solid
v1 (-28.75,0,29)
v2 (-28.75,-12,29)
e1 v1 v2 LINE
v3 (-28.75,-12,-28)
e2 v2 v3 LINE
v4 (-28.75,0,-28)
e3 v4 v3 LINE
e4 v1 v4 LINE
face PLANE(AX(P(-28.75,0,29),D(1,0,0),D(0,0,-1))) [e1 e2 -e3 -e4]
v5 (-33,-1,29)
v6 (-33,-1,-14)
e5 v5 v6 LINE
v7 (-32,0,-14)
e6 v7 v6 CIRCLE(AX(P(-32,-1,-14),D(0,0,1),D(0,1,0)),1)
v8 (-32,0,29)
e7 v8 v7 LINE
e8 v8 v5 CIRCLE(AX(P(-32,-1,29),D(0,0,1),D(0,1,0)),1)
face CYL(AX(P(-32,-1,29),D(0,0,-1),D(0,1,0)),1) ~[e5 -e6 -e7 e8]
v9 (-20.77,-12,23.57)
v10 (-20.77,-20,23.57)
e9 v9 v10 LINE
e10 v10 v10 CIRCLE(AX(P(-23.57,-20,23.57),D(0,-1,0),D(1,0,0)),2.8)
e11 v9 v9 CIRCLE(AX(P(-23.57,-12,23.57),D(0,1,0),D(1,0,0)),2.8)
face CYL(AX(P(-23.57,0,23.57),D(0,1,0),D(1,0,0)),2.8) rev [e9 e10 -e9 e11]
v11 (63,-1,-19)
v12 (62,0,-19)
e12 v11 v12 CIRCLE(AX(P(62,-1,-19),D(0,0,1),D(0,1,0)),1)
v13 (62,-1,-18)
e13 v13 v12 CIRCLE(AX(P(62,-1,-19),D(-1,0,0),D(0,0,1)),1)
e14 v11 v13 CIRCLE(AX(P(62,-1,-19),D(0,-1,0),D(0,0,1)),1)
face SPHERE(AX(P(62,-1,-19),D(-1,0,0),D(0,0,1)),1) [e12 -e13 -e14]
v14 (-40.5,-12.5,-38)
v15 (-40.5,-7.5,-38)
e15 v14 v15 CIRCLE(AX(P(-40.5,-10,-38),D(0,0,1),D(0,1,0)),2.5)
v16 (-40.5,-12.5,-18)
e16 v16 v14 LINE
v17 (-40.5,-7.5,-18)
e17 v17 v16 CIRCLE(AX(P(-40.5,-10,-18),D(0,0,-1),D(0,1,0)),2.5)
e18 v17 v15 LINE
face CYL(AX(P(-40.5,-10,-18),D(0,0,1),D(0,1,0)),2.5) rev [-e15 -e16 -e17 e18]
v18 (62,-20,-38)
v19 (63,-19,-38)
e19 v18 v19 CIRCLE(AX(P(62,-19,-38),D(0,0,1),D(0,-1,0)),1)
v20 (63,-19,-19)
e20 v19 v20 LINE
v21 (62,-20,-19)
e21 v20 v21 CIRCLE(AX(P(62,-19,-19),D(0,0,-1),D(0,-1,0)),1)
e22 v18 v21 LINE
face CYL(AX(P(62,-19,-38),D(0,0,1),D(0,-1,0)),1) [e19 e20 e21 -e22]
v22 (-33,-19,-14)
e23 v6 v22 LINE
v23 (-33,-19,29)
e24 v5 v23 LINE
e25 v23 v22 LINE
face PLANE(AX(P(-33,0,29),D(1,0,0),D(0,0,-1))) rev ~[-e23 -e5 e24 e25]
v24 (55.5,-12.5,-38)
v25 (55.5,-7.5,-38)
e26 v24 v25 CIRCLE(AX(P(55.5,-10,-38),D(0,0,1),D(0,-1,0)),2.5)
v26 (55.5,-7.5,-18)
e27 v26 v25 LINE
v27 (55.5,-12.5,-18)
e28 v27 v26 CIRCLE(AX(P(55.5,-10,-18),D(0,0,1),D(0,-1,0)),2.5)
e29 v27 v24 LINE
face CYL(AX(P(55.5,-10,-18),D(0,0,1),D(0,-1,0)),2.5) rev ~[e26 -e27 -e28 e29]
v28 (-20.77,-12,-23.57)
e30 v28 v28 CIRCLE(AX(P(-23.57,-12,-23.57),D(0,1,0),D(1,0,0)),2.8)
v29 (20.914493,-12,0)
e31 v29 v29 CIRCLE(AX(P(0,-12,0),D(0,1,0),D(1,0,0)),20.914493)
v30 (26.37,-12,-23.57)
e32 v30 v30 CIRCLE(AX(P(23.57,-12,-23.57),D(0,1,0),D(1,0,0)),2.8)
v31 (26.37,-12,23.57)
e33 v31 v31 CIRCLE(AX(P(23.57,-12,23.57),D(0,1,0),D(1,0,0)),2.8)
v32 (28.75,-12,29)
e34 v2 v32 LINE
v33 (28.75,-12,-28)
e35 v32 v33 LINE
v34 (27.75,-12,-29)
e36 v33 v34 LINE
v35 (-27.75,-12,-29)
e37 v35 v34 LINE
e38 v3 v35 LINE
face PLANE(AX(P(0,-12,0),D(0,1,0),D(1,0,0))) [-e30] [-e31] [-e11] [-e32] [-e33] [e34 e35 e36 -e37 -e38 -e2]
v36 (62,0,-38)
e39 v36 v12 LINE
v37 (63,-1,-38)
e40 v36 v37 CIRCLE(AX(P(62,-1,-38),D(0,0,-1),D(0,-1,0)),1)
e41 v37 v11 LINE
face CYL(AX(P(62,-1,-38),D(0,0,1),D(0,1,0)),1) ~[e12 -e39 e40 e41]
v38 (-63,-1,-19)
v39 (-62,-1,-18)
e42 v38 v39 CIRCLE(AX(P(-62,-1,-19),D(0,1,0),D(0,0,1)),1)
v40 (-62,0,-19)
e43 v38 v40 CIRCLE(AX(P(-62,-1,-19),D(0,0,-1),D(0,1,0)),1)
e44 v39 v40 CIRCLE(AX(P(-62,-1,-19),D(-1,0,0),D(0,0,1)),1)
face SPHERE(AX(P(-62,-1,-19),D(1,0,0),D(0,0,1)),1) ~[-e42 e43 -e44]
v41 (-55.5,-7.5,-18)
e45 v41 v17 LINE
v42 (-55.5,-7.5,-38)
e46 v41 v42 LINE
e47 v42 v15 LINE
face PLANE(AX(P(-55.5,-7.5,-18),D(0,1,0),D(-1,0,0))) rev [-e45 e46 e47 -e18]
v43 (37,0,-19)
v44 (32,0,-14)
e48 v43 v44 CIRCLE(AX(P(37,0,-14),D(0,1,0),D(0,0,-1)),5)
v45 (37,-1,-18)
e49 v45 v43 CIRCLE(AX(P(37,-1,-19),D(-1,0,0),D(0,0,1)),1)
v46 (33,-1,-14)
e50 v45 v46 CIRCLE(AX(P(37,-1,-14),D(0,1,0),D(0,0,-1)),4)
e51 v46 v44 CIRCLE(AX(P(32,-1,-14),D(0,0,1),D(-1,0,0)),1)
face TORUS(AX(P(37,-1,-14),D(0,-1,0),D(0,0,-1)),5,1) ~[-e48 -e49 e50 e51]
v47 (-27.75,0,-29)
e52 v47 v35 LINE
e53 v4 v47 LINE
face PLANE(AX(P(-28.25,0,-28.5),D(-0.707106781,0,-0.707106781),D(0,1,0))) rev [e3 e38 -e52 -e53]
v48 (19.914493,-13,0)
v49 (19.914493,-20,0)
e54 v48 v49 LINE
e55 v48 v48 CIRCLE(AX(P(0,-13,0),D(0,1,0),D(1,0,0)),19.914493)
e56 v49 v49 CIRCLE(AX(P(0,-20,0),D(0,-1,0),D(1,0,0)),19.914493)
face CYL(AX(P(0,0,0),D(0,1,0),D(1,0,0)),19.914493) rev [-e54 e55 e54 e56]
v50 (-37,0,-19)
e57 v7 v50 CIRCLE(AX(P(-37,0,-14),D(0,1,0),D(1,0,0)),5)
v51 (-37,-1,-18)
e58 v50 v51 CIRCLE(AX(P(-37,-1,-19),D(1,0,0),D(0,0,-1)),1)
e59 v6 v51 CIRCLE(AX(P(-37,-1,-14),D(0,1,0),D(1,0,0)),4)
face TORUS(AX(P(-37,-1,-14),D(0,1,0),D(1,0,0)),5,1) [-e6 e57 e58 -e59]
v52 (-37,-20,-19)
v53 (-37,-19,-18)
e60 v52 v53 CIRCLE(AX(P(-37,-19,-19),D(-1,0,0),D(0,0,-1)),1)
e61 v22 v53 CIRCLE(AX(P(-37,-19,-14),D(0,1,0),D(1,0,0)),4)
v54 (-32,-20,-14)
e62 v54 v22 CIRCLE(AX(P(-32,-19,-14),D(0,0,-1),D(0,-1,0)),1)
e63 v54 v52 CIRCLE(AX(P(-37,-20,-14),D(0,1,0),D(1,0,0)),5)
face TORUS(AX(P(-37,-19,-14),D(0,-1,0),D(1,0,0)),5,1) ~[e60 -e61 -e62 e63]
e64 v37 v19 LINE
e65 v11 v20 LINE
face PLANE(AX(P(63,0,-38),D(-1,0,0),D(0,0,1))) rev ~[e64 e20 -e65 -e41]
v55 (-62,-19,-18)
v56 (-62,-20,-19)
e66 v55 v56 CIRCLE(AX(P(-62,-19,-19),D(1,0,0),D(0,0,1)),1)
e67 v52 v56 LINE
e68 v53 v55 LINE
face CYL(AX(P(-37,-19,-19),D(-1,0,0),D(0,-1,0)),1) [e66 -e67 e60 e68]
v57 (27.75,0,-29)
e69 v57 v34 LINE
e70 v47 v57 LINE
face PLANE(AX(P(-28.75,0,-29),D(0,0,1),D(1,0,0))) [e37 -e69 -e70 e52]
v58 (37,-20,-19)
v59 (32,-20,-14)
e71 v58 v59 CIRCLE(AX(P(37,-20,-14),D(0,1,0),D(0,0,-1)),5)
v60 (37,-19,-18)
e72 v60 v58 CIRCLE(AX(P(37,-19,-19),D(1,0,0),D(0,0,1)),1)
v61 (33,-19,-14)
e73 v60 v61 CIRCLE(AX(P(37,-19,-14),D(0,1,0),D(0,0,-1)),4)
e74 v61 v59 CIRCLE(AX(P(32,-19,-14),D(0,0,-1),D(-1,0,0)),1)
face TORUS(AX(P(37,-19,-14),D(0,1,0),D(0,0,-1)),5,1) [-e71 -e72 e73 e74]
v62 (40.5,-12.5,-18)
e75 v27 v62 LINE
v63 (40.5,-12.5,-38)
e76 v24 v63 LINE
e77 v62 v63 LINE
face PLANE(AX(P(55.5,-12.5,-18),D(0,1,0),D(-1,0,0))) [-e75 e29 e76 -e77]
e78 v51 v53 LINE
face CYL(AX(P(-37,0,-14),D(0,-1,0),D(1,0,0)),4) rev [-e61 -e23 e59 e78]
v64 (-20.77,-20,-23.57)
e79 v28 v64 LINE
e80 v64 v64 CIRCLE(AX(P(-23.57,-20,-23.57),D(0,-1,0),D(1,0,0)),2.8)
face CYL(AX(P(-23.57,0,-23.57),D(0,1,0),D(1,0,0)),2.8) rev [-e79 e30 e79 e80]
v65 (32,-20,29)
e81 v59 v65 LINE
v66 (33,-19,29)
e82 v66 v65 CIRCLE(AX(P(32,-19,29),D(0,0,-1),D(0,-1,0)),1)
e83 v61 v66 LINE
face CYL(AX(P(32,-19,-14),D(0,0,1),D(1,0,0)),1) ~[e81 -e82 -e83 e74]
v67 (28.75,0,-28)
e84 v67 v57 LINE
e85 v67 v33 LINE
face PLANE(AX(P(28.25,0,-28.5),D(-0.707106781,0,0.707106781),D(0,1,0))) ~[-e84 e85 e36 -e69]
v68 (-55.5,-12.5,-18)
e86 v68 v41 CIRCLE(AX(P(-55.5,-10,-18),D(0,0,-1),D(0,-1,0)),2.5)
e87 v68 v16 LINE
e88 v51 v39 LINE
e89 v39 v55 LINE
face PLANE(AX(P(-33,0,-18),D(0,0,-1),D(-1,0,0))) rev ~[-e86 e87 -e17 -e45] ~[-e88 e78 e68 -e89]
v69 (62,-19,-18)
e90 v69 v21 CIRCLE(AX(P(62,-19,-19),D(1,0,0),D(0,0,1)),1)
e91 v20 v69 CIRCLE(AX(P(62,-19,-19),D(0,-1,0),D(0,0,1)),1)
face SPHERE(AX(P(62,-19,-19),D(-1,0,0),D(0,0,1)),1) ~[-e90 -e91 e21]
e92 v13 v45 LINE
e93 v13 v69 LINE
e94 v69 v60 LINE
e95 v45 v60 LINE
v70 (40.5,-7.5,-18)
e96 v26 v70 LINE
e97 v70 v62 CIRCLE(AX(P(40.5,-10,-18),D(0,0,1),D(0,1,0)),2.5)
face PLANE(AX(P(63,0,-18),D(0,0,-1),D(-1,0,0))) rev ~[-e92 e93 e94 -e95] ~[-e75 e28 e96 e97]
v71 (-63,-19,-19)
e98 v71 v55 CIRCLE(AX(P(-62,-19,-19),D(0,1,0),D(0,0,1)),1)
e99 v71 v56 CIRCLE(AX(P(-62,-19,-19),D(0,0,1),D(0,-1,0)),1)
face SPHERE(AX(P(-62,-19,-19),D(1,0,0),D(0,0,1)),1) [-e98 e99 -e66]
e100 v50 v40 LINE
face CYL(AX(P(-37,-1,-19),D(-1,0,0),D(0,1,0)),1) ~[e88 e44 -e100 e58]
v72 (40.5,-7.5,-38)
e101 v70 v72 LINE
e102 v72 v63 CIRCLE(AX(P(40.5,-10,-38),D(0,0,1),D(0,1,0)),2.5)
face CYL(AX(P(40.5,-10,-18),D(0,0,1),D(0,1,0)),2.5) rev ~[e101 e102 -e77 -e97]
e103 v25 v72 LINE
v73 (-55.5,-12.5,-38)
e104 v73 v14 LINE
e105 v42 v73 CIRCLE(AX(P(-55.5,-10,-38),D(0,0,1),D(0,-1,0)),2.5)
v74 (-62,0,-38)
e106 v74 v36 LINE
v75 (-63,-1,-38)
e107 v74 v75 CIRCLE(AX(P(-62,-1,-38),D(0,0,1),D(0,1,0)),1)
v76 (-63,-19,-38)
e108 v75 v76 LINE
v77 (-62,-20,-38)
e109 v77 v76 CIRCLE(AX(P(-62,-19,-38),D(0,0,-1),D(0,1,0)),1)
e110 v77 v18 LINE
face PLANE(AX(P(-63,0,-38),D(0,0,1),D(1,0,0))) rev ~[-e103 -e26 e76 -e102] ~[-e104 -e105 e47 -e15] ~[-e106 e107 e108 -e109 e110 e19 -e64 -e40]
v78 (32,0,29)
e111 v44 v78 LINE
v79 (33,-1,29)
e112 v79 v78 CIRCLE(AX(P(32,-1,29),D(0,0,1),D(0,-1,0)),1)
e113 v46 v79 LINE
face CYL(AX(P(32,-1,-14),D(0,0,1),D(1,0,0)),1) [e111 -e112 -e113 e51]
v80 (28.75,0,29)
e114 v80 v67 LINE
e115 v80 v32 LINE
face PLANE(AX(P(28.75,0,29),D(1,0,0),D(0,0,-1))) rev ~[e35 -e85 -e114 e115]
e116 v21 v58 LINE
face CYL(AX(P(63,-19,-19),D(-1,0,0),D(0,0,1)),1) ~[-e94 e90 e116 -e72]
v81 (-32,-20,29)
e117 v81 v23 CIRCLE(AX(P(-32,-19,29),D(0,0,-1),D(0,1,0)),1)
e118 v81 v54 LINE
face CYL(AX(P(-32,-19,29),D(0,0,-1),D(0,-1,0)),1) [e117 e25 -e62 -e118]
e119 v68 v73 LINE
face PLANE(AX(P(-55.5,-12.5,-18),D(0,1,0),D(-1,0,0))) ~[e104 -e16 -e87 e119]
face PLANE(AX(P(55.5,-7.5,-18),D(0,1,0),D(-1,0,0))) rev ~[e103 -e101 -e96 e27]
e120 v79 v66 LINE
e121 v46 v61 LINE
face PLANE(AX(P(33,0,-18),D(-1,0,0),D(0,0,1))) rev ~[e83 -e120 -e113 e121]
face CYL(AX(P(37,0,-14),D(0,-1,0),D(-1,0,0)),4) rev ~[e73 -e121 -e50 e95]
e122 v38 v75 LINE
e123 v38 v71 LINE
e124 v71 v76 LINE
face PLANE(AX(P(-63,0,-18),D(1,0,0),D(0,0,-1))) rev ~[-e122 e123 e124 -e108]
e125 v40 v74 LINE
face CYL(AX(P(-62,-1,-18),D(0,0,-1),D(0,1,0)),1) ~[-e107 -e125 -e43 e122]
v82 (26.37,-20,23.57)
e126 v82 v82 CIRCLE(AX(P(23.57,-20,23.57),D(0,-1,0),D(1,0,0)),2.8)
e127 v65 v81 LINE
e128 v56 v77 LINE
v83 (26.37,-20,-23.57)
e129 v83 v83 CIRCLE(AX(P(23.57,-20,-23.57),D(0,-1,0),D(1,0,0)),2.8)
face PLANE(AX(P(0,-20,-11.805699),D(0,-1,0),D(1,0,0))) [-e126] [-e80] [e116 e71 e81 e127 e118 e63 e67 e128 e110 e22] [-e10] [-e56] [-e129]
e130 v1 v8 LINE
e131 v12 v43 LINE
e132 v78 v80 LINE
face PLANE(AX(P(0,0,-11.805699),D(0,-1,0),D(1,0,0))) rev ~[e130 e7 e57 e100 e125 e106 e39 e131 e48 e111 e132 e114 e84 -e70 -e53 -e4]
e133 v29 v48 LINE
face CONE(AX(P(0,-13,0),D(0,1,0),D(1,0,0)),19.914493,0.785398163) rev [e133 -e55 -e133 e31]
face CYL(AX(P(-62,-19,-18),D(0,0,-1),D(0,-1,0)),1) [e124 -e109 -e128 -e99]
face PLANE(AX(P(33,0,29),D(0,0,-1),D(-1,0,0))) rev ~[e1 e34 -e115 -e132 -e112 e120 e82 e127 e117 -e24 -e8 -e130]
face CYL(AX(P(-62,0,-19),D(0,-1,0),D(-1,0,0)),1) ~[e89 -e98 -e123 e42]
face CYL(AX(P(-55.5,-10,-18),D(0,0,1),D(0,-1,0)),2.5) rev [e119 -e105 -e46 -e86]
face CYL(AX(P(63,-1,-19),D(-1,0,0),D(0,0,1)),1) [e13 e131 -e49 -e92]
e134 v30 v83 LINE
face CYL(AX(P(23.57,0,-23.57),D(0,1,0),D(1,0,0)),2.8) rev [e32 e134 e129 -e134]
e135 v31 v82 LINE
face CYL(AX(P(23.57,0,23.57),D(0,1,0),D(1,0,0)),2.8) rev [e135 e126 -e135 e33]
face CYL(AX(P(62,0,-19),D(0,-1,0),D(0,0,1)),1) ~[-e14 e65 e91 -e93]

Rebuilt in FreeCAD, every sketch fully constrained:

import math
import FreeCAD as App
import Part
import Sketcher


def edges_at(feature, points):
    """Names of the edges that pass closest to the given points."""
    edges = feature.Shape.Edges
    near = lambda p: min(range(len(edges)), key=lambda i: edges[i].distToShape(Part.Vertex(*p))[0])
    return sorted({f"Edge{near(p) + 1}" for p in points})


def add_polygon(sketch, points):
    """Adds a closed chain of lines whose ends are joined by coincident constraints."""
    first, n = sketch.GeometryCount, len(points)
    for a, b in zip(points, points[1:] + points[:1]):
        sketch.addGeometry(Part.LineSegment(App.Vector(*a, 0), App.Vector(*b, 0)), False)
    for i in range(n):
        sketch.addConstraint(Sketcher.Constraint("Coincident", first + i, 2, first + (i + 1) % n, 1))

doc = App.newDocument("Part")
params = doc.addObject("Spreadsheet::Sheet", "Params")
for row, (alias, value) in enumerate([
    ("sketch1_diameter", "5.6 mm"),
    ("sketch1_width", "66 mm"),
    ("sketch1_width2", "30 mm"),
    ("sketch1_height", "47 mm"),
    ("sketch1_height2", "20 mm"),
    ("pad1_length", "20 mm"),
    ("sketch2_height", "58 mm"),
    ("sketch2_width", "57.5 mm"),
    ("pocket1_length", "12 mm"),
    ("sketch3_radius", "2.5 mm"),
    ("sketch3_width", "15 mm"),
    ("fillet_radius", "4 mm"),
    ("fillet2_radius", "1 mm"),
    ("chamfer_size", "1 mm"),
    ("chamfer2_size", "1 mm"),
], start=1):
    params.set(f"A{row}", alias)
    params.set(f"B{row}", "=" + value)
    params.setAlias(f"B{row}", alias)

body = doc.addObject("PartDesign::Body", "Body")

# Sketch on XZ plane
sketch1 = body.newObject("Sketcher::SketchObject", "Sketch")
sketch1.AttachmentSupport = (doc.getObject("XZ_Plane"), [""])
sketch1.MapMode = "FlatFace"
add_polygon(sketch1, [(33, -18), (33, 29), (-33, 29), (-33, -18), (-63, -18), (-63, -38), (63, -38), (63, -18)])  # lines 0-7
sketch1.addGeometry(Part.Circle(App.Vector(-23.57, -23.57, 0), App.Vector(0, 0, 1), 2.8), False)  # 8
sketch1.addGeometry(Part.Circle(App.Vector(23.57, -23.57, 0), App.Vector(0, 0, 1), 2.8), False)  # 9
sketch1.addGeometry(Part.Circle(App.Vector(0, 0, 0), App.Vector(0, 0, 1), 19.914493), False)  # 10
sketch1.addGeometry(Part.Circle(App.Vector(-23.57, 23.57, 0), App.Vector(0, 0, 1), 2.8), False)  # 11
sketch1.addGeometry(Part.Circle(App.Vector(23.57, 23.57, 0), App.Vector(0, 0, 1), 2.8), False)  # 12
sketch1.addConstraint([
    Sketcher.Constraint("Vertical", 0),
    Sketcher.Constraint("Horizontal", 1),
    Sketcher.Constraint("Vertical", 2),
    Sketcher.Constraint("Horizontal", 3),
    Sketcher.Constraint("Vertical", 4),
    Sketcher.Constraint("Horizontal", 5),
    Sketcher.Constraint("Vertical", 6),
    Sketcher.Constraint("Horizontal", 7),
    Sketcher.Constraint("Coincident", 10, 3, -1, 1),
    Sketcher.Constraint("Equal", 8, 9),
    Sketcher.Constraint("Equal", 9, 11),
    Sketcher.Constraint("Equal", 11, 12),
    Sketcher.Constraint("Symmetric", 9, 3, 11, 3, -1, 1),
    Sketcher.Constraint("Symmetric", 8, 3, 12, 3, -1, 1),
    Sketcher.Constraint("Symmetric", 8, 3, 9, 3, -2),
    Sketcher.Constraint("Symmetric", 3, 2, 6, 2, -2),
    Sketcher.Constraint("Equal", 3, 7),
    Sketcher.Constraint("Diameter", 8, 5.6),
    Sketcher.Constraint("DistanceX", 1, 2, 1, 1, 66.0),
    Sketcher.Constraint("DistanceX", 3, 2, 3, 1, 30.0),
    Sketcher.Constraint("DistanceY", 0, 1, 0, 2, 47.0),
    Sketcher.Constraint("DistanceY", 4, 2, 4, 1, 20.0),
    Sketcher.Constraint("DistanceY", -1, 1, 0, 2, 29.0),
    Sketcher.Constraint("DistanceX", 8, 3, -1, 1, 23.57),
    Sketcher.Constraint("DistanceY", 8, 3, -1, 1, 23.57),
    Sketcher.Constraint("Diameter", 10, 39.828986),
])
sketch1.setExpression("Constraints[25]", "Params.sketch1_diameter")
sketch1.setExpression("Constraints[26]", "Params.sketch1_width")
sketch1.setExpression("Constraints[27]", "Params.sketch1_width2")
sketch1.setExpression("Constraints[28]", "Params.sketch1_height")
sketch1.setExpression("Constraints[29]", "Params.sketch1_height2")
pad1 = body.newObject("PartDesign::Pad", "Pad")
pad1.Profile = sketch1
pad1.setExpression("Length", "Params.pad1_length")

# Sketch on XZ plane
sketch2 = body.newObject("Sketcher::SketchObject", "Sketch001")
sketch2.AttachmentSupport = (doc.getObject("XZ_Plane"), [""])
sketch2.MapMode = "FlatFace"
add_polygon(sketch2, [(-28.75, -29), (-28.75, 29), (28.75, 29), (28.75, -29)])  # lines 0-3
sketch2.addConstraint([
    Sketcher.Constraint("Vertical", 0),
    Sketcher.Constraint("Horizontal", 1),
    Sketcher.Constraint("Vertical", 2),
    Sketcher.Constraint("Horizontal", 3),
    Sketcher.Constraint("Symmetric", 0, 2, 2, 2, -1, 1),
    Sketcher.Constraint("DistanceY", 0, 1, 0, 2, 58.0),
    Sketcher.Constraint("DistanceX", 1, 1, 1, 2, 57.5),
])
sketch2.setExpression("Constraints[9]", "Params.sketch2_height")
sketch2.setExpression("Constraints[10]", "Params.sketch2_width")
pocket1 = body.newObject("PartDesign::Pocket", "Pocket")
pocket1.Profile = sketch2
pocket1.setExpression("Length", "Params.pocket1_length")
pocket1.Reversed = True

# Sketch on XY plane
sketch3 = body.newObject("Sketcher::SketchObject", "Sketch002")
sketch3.AttachmentSupport = (doc.getObject("XY_Plane"), [""])
sketch3.MapMode = "FlatFace"
sketch3.AttachmentOffset = App.Placement(App.Vector(0, 0, -18), App.Rotation())
sketch3.addGeometry([
    Part.ArcOfCircle(Part.Circle(App.Vector(55.5, -10, 0), App.Vector(0, 0, 1), 2.5), math.radians(-90), math.radians(90)),
    Part.LineSegment(App.Vector(55.5, -7.5, 0), App.Vector(40.5, -7.5, 0)),
    Part.ArcOfCircle(Part.Circle(App.Vector(40.5, -10, 0), App.Vector(0, 0, 1), 2.5), math.radians(90), math.radians(270)),
    Part.LineSegment(App.Vector(40.5, -12.5, 0), App.Vector(55.5, -12.5, 0)),
], False)
sketch3.addConstraint([
    Sketcher.Constraint("Tangent", 0, 2, 1, 1),
    Sketcher.Constraint("Tangent", 1, 2, 2, 1),
    Sketcher.Constraint("Tangent", 2, 2, 3, 1),
    Sketcher.Constraint("Tangent", 3, 2, 0, 1),
    Sketcher.Constraint("Horizontal", 1),
    Sketcher.Constraint("Horizontal", 3),
    Sketcher.Constraint("Radius", 0, 2.5),
    Sketcher.Constraint("DistanceX", 1, 2, 1, 1, 15.0),
    Sketcher.Constraint("DistanceY", 0, 3, -1, 1, 10.0),
    Sketcher.Constraint("DistanceX", -1, 1, 0, 3, 55.5),
])
sketch3.setExpression("Constraints[6]", "Params.sketch3_radius")
sketch3.setExpression("Constraints[7]", "Params.sketch3_width")
pocket2 = body.newObject("PartDesign::Pocket", "Pocket001")
pocket2.Profile = sketch3
pocket2.Type = "ThroughAll"
doc.recompute()

mirrored = body.newObject("PartDesign::Mirrored", "Mirrored")
mirrored.Originals = [pocket2]
mirrored.MirrorPlane = (doc.getObject("YZ_Plane"), [""])
body.Tip = mirrored
doc.recompute()

fillet = body.newObject("PartDesign::Fillet", "Fillet")
fillet.Base = (mirrored, edges_at(mirrored, [(33, -10, -18), (-33, -10, -18)]))
fillet.setExpression("Radius", "Params.fillet_radius")
doc.recompute()

fillet2 = body.newObject("PartDesign::Fillet", "Fillet001")
fillet2.Base = (fillet, edges_at(fillet, [
    (33, 0, 7.5),
    (-33, 0, 7.5),
    (33, -20, 7.5),
    (-33, -20, 7.5),
    (63, -10, -18),
    (-63, -10, -18),
    (-63, 0, -28),
    (-63, -20, -28),
    (63, 0, -28),
    (63, -20, -28),
]))
fillet2.setExpression("Radius", "Params.fillet2_radius")
doc.recompute()

chamfer = body.newObject("PartDesign::Chamfer", "Chamfer")
chamfer.Base = (fillet2, edges_at(fillet2, [(28.75, -6, -29), (-28.75, -6, -29)]))
chamfer.setExpression("Size", "Params.chamfer_size")
doc.recompute()

chamfer2 = body.newObject("PartDesign::Chamfer", "Chamfer001")
chamfer2.Base = (chamfer, edges_at(chamfer, [(-19.914, -12, 0)]))
chamfer2.setExpression("Size", "Params.chamfer2_size")

doc.recompute()
